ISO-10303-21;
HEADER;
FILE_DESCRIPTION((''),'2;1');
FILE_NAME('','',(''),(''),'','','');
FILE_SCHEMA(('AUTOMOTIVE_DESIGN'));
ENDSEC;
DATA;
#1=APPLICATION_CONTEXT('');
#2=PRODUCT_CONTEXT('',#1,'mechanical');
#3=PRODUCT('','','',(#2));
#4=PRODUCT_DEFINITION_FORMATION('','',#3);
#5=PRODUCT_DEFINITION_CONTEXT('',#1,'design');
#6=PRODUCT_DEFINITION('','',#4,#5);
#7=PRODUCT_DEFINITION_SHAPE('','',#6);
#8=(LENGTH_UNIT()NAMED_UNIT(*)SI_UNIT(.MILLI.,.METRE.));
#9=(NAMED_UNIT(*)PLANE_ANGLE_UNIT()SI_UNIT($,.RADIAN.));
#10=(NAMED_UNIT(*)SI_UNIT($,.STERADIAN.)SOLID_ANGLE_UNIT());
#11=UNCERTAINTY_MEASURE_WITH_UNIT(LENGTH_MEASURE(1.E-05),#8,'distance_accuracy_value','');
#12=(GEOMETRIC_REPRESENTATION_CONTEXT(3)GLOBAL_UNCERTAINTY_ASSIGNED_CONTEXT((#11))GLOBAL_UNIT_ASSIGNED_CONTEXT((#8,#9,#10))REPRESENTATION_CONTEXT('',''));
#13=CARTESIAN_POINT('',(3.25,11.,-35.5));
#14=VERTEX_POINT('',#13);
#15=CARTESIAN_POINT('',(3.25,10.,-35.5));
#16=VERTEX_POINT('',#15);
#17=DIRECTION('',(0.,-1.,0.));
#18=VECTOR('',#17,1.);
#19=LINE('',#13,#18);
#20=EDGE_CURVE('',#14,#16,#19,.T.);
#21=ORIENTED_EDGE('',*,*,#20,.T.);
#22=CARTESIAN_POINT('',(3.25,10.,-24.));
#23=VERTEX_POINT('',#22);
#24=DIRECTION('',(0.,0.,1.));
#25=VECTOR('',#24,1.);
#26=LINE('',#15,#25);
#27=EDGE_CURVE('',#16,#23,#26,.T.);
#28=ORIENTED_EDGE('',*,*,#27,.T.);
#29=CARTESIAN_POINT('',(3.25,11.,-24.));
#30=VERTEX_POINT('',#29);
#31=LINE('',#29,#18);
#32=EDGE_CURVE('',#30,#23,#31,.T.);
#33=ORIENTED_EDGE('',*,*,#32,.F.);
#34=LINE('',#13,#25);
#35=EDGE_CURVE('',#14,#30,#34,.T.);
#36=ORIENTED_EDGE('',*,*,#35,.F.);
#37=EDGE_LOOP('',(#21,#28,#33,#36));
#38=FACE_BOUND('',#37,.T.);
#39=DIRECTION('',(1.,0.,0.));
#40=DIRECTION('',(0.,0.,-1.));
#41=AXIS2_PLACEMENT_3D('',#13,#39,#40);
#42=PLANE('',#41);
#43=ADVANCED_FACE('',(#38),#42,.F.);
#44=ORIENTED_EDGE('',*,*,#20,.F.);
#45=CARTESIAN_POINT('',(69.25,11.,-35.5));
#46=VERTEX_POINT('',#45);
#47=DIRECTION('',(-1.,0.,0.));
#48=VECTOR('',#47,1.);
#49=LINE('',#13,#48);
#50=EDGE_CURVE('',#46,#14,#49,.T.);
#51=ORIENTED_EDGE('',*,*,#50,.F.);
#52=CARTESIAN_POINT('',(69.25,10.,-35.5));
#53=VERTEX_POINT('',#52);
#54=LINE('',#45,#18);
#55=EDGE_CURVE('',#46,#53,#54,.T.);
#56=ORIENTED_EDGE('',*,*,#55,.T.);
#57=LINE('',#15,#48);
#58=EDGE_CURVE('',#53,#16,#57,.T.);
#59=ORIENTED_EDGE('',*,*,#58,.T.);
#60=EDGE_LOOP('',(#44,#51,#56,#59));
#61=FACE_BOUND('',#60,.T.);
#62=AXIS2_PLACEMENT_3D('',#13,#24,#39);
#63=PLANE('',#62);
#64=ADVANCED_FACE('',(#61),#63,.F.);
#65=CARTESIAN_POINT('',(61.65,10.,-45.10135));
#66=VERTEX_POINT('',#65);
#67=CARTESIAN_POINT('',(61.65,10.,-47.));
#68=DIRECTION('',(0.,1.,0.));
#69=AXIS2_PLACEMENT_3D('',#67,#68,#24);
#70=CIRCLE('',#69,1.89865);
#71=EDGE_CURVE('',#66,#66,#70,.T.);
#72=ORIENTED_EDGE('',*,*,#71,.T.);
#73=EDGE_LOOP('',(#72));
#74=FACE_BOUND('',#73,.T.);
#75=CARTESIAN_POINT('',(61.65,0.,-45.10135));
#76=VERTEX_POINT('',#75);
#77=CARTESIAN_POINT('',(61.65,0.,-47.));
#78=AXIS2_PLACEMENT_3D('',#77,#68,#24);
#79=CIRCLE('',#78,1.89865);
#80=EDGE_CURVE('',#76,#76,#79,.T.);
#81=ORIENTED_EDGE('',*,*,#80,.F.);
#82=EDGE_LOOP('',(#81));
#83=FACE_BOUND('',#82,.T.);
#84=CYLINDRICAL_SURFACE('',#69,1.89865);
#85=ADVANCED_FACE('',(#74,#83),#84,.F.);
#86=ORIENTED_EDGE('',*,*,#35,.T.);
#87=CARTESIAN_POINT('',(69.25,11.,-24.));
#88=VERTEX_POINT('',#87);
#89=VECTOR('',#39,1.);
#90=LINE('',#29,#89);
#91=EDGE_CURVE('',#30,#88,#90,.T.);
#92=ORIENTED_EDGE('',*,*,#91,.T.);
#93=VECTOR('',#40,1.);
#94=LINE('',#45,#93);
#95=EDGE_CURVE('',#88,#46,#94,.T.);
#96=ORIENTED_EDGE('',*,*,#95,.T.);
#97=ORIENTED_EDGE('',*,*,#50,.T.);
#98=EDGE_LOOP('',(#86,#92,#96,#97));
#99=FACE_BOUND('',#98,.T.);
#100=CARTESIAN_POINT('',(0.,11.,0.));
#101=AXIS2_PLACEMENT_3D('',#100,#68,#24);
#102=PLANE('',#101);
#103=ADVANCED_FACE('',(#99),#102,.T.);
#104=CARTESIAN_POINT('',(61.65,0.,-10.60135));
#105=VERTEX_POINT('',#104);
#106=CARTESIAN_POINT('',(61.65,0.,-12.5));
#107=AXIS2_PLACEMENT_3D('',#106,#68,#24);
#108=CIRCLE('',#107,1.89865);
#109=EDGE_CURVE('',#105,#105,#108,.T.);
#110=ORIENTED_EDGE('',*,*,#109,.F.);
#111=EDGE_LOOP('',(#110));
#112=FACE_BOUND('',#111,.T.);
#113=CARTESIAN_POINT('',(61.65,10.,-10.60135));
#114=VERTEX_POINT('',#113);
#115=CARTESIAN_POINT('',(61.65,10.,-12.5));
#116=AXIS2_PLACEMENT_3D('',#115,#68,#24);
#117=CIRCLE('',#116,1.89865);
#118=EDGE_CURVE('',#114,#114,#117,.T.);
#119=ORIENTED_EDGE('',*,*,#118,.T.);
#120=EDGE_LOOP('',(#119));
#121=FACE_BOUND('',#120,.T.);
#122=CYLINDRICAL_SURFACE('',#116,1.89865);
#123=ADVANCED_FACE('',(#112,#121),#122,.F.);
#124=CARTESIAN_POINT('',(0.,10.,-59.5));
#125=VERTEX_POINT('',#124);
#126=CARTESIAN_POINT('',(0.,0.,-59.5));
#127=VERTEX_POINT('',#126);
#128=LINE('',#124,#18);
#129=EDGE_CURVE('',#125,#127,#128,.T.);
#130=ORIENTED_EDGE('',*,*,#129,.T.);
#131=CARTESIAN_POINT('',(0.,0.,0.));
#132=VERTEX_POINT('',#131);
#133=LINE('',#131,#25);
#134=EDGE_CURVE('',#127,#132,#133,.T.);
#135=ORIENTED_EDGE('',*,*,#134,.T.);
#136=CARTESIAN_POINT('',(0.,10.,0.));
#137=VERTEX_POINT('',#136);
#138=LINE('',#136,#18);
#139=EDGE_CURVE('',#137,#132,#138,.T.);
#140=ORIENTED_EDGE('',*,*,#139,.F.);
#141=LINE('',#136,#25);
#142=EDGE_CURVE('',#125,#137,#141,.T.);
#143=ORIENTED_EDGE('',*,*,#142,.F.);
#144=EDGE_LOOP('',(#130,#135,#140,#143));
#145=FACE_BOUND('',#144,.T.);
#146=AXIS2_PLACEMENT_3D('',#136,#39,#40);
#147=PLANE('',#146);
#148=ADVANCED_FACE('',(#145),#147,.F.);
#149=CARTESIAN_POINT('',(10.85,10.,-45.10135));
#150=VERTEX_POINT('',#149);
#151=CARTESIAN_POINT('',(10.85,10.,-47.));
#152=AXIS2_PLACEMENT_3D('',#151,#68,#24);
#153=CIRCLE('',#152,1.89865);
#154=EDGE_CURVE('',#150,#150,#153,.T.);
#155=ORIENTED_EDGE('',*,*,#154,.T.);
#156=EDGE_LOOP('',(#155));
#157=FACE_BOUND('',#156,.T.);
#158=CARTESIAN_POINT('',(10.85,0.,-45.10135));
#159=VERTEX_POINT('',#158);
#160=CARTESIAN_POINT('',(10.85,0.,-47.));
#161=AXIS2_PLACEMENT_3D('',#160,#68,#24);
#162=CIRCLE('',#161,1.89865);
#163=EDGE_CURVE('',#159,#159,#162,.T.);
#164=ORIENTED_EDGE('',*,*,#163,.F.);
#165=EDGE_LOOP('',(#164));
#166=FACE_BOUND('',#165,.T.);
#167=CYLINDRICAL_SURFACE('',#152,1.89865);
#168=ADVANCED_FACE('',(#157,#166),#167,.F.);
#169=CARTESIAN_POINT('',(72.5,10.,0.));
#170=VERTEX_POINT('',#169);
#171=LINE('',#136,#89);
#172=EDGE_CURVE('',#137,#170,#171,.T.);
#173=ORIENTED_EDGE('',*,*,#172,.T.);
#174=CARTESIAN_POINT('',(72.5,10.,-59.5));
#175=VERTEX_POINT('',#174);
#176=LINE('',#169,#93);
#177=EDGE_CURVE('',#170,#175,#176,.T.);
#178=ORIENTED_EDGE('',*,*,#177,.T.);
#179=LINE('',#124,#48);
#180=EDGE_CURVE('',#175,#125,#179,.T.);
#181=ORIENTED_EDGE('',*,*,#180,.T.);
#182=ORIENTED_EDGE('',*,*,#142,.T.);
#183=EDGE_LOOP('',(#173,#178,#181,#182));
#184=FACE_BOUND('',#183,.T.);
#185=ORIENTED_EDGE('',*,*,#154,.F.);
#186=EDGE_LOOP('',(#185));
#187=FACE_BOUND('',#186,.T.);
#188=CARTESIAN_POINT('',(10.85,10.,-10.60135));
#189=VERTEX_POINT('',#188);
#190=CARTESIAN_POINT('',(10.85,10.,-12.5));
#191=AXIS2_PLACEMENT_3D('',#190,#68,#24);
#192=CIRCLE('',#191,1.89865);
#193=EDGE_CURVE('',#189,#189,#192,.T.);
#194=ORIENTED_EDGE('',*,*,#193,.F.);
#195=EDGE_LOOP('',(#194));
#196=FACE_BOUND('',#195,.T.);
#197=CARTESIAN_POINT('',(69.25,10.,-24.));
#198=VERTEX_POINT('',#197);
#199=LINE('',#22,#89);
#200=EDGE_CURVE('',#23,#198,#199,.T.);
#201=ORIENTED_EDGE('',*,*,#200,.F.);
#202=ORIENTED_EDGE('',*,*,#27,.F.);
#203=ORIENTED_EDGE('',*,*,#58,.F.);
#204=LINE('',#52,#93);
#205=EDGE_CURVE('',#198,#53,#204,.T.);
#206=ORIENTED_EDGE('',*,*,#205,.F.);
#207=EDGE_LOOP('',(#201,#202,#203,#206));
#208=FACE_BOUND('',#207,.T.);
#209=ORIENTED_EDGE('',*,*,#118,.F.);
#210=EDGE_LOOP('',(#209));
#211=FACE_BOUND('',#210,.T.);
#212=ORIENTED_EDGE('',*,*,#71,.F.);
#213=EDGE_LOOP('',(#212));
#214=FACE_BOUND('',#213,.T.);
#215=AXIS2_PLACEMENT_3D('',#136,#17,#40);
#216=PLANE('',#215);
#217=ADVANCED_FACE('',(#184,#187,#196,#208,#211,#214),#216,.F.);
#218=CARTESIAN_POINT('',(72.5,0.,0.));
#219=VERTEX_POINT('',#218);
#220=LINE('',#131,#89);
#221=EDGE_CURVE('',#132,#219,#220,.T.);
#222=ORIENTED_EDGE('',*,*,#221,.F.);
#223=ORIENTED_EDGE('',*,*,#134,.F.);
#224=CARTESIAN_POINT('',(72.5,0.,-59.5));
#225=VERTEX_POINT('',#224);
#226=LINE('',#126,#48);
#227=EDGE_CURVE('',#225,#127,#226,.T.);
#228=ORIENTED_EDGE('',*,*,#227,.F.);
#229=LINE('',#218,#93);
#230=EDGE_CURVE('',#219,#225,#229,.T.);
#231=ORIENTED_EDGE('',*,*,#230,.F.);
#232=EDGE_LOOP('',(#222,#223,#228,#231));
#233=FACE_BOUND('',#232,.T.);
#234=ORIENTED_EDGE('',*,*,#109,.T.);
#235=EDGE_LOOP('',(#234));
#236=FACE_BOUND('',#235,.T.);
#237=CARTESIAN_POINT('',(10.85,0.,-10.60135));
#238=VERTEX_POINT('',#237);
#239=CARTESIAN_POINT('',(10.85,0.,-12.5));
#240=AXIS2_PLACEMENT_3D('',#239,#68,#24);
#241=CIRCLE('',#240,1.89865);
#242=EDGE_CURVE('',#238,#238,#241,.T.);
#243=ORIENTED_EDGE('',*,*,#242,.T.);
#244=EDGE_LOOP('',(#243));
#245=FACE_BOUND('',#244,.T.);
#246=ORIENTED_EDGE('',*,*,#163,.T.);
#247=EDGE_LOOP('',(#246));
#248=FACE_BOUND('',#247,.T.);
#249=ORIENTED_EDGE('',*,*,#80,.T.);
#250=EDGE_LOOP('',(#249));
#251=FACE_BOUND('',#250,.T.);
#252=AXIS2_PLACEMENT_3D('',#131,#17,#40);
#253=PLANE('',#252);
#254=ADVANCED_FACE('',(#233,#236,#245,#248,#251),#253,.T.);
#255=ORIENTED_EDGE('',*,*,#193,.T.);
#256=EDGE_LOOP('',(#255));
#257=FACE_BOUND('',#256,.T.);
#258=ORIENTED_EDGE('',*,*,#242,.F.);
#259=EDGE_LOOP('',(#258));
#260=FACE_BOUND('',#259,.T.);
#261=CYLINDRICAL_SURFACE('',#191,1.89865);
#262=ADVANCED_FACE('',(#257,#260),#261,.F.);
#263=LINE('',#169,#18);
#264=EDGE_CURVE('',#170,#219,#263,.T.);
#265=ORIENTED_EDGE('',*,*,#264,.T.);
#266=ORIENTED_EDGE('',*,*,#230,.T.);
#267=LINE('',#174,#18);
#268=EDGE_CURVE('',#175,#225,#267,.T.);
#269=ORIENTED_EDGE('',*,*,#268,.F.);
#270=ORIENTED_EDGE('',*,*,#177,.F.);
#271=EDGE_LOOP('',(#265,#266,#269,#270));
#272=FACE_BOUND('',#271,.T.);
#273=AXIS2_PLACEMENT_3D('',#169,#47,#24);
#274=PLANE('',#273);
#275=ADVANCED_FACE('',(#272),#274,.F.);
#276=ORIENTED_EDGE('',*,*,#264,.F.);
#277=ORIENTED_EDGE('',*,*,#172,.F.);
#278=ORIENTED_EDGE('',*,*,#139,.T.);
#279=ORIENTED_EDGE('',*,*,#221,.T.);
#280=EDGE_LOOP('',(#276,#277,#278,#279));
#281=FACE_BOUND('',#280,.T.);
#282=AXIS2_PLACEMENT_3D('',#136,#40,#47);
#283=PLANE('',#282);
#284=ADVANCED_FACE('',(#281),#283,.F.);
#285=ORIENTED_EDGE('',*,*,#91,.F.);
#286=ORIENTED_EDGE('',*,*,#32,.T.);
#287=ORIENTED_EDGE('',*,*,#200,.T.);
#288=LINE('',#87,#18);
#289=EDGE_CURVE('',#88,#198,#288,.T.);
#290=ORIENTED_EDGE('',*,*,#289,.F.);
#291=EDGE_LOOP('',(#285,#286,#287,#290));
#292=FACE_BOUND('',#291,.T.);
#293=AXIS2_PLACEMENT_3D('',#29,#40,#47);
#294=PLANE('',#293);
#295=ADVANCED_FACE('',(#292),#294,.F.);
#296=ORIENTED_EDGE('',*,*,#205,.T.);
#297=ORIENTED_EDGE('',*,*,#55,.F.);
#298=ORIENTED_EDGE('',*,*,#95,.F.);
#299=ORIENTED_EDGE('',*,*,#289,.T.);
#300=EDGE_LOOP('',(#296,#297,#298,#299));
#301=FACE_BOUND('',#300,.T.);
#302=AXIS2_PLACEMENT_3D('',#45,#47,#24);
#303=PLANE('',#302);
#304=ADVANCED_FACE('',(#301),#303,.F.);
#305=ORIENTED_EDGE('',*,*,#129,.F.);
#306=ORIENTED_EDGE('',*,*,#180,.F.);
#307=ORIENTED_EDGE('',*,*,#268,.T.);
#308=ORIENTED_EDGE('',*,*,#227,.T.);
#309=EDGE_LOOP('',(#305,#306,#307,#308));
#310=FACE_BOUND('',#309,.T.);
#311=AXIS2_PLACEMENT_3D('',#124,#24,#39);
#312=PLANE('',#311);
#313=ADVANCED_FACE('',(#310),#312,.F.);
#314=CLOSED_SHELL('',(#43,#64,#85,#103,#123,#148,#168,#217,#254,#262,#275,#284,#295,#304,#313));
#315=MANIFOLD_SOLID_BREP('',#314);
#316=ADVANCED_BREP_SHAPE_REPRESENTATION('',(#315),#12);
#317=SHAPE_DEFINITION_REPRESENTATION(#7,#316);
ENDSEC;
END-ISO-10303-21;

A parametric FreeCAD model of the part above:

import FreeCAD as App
import Part
import Sketcher
from FreeCAD import Vector
Q = App.Units.Quantity


def add_polygon(sketch, points):
    """Adds a closed chain of lines whose ends are joined by coincident constraints."""
    first, n = sketch.GeometryCount, len(points)
    for a, b in zip(points, points[1:] + points[:1]):
        sketch.addGeometry(Part.LineSegment(App.Vector(*a, 0), App.Vector(*b, 0)), False)
    for i in range(n):
        sketch.addConstraint(Sketcher.Constraint("Coincident", first + i, 2, first + (i + 1) % n, 1))

doc = App.newDocument("Part")
body = doc.addObject("PartDesign::Body", "Body")

# Sketch on XZ plane
sketch1 = doc.addObject("Sketcher::SketchObject", "Sketch")
body.addObject(sketch1)
sketch1.AttachmentSupport = (doc.XZ_Plane, [""])
sketch1.MapMode = "FlatFace"
add_polygon(sketch1, [(0, -60), (0, 0), (72, 0), (72, -60)])  # lines 0-3
sketch1.addConstraint(Sketcher.Constraint("Vertical", 0))
sketch1.addConstraint(Sketcher.Constraint("Horizontal", 1))
sketch1.addConstraint(Sketcher.Constraint("Vertical", 2))
sketch1.addConstraint(Sketcher.Constraint("Horizontal", 3))
sketch1.addConstraint(Sketcher.Constraint("Coincident", 0, 2, -1, 1))
sketch1.addConstraint(Sketcher.Constraint("DistanceX", 1, 1, 1, 2, Q("72.5 mm")))
sketch1.addConstraint(Sketcher.Constraint("DistanceY", 0, 1, 0, 2, Q("59.5 mm")))
pad1 = doc.addObject("PartDesign::Pad", "Pad")
body.addObject(pad1)
pad1.Profile = sketch1
pad1.Length = 10
pad1.Reversed = True

# Sketch on XZ plane
sketch2 = doc.addObject("Sketcher::SketchObject", "Sketch001")
body.addObject(sketch2)
sketch2.AttachmentSupport = (doc.XZ_Plane, [""])
sketch2.MapMode = "FlatFace"
sketch2.AttachmentOffset = App.Placement(Vector(0, 0, -10), App.Rotation())
add_polygon(sketch2, [(3, -36), (3, -24), (69, -24), (69, -36)])  # lines 0-3
sketch2.addConstraint(Sketcher.Constraint("Vertical", 0))
sketch2.addConstraint(Sketcher.Constraint("Horizontal", 1))
sketch2.addConstraint(Sketcher.Constraint("Vertical", 2))
sketch2.addConstraint(Sketcher.Constraint("Horizontal", 3))
sketch2.addConstraint(Sketcher.Constraint("DistanceX", 1, 1, 1, 2, Q("66 mm")))
sketch2.addConstraint(Sketcher.Constraint("DistanceY", 0, 1, 0, 2, Q("11.5 mm")))
sketch2.addConstraint(Sketcher.Constraint("DistanceY", 0, 2, -1, 1, Q("24 mm")))
sketch2.addConstraint(Sketcher.Constraint("DistanceX", -1, 1, 0, 2, Q("3.25 mm")))
pad2 = doc.addObject("PartDesign::Pad", "Pad001")
body.addObject(pad2)
pad2.Profile = sketch2
pad2.Length = 1
pad2.Reversed = True

# Sketch on XZ plane
sketch3 = doc.addObject("Sketcher::SketchObject", "Sketch002")
body.addObject(sketch3)
sketch3.AttachmentSupport = (doc.XZ_Plane, [""])
sketch3.MapMode = "FlatFace"
sketch3.AttachmentOffset = App.Placement(Vector(0, 0, -10), App.Rotation())
sketch3.addGeometry(Part.Circle(Vector(10.8, -47, 0), Vector(0, 0, 1), 1.9), False)
sketch3.addGeometry(Part.Circle(Vector(61.6, -47, 0), Vector(0, 0, 1), 1.9), False)
sketch3.addGeometry(Part.Circle(Vector(10.8, -12.5, 0), Vector(0, 0, 1), 1.9), False)
sketch3.addGeometry(Part.Circle(Vector(61.6, -12.5, 0), Vector(0, 0, 1), 1.9), False)
sketch3.addConstraint(Sketcher.Constraint("Equal", 0, 1))
sketch3.addConstraint(Sketcher.Constraint("Equal", 1, 2))
sketch3.addConstraint(Sketcher.Constraint("Equal", 2, 3))
sketch3.addConstraint(Sketcher.Constraint("Horizontal", 0, 3, 1, 3))
sketch3.addConstraint(Sketcher.Constraint("Horizontal", 2, 3, 3, 3))
sketch3.addConstraint(Sketcher.Constraint("Vertical", 0, 3, 2, 3))
sketch3.addConstraint(Sketcher.Constraint("Vertical", 1, 3, 3, 3))
sketch3.addConstraint(Sketcher.Constraint("DistanceY", 0, 3, -1, 1, Q("47 mm")))
sketch3.addConstraint(Sketcher.Constraint("Diameter", 0, Q("3.7973 mm")))
sketch3.addConstraint(Sketcher.Constraint("DistanceY", 2, 3, -1, 1, Q("12.5 mm")))
sketch3.addConstraint(Sketcher.Constraint("DistanceX", 0, 3, 1, 3, Q("50.8 mm")))
sketch3.addConstraint(Sketcher.Constraint("DistanceX", -1, 1, 0, 3, Q("10.85 mm")))
doc.recompute()
hole = doc.addObject("PartDesign::Hole", "Hole")
body.addObject(hole)
hole.Profile = sketch3
hole.ThreadType = "None"
hole.Diameter = 3.7973
hole.DepthType = "ThroughAll"
hole.Reversed = True

doc.recompute()
